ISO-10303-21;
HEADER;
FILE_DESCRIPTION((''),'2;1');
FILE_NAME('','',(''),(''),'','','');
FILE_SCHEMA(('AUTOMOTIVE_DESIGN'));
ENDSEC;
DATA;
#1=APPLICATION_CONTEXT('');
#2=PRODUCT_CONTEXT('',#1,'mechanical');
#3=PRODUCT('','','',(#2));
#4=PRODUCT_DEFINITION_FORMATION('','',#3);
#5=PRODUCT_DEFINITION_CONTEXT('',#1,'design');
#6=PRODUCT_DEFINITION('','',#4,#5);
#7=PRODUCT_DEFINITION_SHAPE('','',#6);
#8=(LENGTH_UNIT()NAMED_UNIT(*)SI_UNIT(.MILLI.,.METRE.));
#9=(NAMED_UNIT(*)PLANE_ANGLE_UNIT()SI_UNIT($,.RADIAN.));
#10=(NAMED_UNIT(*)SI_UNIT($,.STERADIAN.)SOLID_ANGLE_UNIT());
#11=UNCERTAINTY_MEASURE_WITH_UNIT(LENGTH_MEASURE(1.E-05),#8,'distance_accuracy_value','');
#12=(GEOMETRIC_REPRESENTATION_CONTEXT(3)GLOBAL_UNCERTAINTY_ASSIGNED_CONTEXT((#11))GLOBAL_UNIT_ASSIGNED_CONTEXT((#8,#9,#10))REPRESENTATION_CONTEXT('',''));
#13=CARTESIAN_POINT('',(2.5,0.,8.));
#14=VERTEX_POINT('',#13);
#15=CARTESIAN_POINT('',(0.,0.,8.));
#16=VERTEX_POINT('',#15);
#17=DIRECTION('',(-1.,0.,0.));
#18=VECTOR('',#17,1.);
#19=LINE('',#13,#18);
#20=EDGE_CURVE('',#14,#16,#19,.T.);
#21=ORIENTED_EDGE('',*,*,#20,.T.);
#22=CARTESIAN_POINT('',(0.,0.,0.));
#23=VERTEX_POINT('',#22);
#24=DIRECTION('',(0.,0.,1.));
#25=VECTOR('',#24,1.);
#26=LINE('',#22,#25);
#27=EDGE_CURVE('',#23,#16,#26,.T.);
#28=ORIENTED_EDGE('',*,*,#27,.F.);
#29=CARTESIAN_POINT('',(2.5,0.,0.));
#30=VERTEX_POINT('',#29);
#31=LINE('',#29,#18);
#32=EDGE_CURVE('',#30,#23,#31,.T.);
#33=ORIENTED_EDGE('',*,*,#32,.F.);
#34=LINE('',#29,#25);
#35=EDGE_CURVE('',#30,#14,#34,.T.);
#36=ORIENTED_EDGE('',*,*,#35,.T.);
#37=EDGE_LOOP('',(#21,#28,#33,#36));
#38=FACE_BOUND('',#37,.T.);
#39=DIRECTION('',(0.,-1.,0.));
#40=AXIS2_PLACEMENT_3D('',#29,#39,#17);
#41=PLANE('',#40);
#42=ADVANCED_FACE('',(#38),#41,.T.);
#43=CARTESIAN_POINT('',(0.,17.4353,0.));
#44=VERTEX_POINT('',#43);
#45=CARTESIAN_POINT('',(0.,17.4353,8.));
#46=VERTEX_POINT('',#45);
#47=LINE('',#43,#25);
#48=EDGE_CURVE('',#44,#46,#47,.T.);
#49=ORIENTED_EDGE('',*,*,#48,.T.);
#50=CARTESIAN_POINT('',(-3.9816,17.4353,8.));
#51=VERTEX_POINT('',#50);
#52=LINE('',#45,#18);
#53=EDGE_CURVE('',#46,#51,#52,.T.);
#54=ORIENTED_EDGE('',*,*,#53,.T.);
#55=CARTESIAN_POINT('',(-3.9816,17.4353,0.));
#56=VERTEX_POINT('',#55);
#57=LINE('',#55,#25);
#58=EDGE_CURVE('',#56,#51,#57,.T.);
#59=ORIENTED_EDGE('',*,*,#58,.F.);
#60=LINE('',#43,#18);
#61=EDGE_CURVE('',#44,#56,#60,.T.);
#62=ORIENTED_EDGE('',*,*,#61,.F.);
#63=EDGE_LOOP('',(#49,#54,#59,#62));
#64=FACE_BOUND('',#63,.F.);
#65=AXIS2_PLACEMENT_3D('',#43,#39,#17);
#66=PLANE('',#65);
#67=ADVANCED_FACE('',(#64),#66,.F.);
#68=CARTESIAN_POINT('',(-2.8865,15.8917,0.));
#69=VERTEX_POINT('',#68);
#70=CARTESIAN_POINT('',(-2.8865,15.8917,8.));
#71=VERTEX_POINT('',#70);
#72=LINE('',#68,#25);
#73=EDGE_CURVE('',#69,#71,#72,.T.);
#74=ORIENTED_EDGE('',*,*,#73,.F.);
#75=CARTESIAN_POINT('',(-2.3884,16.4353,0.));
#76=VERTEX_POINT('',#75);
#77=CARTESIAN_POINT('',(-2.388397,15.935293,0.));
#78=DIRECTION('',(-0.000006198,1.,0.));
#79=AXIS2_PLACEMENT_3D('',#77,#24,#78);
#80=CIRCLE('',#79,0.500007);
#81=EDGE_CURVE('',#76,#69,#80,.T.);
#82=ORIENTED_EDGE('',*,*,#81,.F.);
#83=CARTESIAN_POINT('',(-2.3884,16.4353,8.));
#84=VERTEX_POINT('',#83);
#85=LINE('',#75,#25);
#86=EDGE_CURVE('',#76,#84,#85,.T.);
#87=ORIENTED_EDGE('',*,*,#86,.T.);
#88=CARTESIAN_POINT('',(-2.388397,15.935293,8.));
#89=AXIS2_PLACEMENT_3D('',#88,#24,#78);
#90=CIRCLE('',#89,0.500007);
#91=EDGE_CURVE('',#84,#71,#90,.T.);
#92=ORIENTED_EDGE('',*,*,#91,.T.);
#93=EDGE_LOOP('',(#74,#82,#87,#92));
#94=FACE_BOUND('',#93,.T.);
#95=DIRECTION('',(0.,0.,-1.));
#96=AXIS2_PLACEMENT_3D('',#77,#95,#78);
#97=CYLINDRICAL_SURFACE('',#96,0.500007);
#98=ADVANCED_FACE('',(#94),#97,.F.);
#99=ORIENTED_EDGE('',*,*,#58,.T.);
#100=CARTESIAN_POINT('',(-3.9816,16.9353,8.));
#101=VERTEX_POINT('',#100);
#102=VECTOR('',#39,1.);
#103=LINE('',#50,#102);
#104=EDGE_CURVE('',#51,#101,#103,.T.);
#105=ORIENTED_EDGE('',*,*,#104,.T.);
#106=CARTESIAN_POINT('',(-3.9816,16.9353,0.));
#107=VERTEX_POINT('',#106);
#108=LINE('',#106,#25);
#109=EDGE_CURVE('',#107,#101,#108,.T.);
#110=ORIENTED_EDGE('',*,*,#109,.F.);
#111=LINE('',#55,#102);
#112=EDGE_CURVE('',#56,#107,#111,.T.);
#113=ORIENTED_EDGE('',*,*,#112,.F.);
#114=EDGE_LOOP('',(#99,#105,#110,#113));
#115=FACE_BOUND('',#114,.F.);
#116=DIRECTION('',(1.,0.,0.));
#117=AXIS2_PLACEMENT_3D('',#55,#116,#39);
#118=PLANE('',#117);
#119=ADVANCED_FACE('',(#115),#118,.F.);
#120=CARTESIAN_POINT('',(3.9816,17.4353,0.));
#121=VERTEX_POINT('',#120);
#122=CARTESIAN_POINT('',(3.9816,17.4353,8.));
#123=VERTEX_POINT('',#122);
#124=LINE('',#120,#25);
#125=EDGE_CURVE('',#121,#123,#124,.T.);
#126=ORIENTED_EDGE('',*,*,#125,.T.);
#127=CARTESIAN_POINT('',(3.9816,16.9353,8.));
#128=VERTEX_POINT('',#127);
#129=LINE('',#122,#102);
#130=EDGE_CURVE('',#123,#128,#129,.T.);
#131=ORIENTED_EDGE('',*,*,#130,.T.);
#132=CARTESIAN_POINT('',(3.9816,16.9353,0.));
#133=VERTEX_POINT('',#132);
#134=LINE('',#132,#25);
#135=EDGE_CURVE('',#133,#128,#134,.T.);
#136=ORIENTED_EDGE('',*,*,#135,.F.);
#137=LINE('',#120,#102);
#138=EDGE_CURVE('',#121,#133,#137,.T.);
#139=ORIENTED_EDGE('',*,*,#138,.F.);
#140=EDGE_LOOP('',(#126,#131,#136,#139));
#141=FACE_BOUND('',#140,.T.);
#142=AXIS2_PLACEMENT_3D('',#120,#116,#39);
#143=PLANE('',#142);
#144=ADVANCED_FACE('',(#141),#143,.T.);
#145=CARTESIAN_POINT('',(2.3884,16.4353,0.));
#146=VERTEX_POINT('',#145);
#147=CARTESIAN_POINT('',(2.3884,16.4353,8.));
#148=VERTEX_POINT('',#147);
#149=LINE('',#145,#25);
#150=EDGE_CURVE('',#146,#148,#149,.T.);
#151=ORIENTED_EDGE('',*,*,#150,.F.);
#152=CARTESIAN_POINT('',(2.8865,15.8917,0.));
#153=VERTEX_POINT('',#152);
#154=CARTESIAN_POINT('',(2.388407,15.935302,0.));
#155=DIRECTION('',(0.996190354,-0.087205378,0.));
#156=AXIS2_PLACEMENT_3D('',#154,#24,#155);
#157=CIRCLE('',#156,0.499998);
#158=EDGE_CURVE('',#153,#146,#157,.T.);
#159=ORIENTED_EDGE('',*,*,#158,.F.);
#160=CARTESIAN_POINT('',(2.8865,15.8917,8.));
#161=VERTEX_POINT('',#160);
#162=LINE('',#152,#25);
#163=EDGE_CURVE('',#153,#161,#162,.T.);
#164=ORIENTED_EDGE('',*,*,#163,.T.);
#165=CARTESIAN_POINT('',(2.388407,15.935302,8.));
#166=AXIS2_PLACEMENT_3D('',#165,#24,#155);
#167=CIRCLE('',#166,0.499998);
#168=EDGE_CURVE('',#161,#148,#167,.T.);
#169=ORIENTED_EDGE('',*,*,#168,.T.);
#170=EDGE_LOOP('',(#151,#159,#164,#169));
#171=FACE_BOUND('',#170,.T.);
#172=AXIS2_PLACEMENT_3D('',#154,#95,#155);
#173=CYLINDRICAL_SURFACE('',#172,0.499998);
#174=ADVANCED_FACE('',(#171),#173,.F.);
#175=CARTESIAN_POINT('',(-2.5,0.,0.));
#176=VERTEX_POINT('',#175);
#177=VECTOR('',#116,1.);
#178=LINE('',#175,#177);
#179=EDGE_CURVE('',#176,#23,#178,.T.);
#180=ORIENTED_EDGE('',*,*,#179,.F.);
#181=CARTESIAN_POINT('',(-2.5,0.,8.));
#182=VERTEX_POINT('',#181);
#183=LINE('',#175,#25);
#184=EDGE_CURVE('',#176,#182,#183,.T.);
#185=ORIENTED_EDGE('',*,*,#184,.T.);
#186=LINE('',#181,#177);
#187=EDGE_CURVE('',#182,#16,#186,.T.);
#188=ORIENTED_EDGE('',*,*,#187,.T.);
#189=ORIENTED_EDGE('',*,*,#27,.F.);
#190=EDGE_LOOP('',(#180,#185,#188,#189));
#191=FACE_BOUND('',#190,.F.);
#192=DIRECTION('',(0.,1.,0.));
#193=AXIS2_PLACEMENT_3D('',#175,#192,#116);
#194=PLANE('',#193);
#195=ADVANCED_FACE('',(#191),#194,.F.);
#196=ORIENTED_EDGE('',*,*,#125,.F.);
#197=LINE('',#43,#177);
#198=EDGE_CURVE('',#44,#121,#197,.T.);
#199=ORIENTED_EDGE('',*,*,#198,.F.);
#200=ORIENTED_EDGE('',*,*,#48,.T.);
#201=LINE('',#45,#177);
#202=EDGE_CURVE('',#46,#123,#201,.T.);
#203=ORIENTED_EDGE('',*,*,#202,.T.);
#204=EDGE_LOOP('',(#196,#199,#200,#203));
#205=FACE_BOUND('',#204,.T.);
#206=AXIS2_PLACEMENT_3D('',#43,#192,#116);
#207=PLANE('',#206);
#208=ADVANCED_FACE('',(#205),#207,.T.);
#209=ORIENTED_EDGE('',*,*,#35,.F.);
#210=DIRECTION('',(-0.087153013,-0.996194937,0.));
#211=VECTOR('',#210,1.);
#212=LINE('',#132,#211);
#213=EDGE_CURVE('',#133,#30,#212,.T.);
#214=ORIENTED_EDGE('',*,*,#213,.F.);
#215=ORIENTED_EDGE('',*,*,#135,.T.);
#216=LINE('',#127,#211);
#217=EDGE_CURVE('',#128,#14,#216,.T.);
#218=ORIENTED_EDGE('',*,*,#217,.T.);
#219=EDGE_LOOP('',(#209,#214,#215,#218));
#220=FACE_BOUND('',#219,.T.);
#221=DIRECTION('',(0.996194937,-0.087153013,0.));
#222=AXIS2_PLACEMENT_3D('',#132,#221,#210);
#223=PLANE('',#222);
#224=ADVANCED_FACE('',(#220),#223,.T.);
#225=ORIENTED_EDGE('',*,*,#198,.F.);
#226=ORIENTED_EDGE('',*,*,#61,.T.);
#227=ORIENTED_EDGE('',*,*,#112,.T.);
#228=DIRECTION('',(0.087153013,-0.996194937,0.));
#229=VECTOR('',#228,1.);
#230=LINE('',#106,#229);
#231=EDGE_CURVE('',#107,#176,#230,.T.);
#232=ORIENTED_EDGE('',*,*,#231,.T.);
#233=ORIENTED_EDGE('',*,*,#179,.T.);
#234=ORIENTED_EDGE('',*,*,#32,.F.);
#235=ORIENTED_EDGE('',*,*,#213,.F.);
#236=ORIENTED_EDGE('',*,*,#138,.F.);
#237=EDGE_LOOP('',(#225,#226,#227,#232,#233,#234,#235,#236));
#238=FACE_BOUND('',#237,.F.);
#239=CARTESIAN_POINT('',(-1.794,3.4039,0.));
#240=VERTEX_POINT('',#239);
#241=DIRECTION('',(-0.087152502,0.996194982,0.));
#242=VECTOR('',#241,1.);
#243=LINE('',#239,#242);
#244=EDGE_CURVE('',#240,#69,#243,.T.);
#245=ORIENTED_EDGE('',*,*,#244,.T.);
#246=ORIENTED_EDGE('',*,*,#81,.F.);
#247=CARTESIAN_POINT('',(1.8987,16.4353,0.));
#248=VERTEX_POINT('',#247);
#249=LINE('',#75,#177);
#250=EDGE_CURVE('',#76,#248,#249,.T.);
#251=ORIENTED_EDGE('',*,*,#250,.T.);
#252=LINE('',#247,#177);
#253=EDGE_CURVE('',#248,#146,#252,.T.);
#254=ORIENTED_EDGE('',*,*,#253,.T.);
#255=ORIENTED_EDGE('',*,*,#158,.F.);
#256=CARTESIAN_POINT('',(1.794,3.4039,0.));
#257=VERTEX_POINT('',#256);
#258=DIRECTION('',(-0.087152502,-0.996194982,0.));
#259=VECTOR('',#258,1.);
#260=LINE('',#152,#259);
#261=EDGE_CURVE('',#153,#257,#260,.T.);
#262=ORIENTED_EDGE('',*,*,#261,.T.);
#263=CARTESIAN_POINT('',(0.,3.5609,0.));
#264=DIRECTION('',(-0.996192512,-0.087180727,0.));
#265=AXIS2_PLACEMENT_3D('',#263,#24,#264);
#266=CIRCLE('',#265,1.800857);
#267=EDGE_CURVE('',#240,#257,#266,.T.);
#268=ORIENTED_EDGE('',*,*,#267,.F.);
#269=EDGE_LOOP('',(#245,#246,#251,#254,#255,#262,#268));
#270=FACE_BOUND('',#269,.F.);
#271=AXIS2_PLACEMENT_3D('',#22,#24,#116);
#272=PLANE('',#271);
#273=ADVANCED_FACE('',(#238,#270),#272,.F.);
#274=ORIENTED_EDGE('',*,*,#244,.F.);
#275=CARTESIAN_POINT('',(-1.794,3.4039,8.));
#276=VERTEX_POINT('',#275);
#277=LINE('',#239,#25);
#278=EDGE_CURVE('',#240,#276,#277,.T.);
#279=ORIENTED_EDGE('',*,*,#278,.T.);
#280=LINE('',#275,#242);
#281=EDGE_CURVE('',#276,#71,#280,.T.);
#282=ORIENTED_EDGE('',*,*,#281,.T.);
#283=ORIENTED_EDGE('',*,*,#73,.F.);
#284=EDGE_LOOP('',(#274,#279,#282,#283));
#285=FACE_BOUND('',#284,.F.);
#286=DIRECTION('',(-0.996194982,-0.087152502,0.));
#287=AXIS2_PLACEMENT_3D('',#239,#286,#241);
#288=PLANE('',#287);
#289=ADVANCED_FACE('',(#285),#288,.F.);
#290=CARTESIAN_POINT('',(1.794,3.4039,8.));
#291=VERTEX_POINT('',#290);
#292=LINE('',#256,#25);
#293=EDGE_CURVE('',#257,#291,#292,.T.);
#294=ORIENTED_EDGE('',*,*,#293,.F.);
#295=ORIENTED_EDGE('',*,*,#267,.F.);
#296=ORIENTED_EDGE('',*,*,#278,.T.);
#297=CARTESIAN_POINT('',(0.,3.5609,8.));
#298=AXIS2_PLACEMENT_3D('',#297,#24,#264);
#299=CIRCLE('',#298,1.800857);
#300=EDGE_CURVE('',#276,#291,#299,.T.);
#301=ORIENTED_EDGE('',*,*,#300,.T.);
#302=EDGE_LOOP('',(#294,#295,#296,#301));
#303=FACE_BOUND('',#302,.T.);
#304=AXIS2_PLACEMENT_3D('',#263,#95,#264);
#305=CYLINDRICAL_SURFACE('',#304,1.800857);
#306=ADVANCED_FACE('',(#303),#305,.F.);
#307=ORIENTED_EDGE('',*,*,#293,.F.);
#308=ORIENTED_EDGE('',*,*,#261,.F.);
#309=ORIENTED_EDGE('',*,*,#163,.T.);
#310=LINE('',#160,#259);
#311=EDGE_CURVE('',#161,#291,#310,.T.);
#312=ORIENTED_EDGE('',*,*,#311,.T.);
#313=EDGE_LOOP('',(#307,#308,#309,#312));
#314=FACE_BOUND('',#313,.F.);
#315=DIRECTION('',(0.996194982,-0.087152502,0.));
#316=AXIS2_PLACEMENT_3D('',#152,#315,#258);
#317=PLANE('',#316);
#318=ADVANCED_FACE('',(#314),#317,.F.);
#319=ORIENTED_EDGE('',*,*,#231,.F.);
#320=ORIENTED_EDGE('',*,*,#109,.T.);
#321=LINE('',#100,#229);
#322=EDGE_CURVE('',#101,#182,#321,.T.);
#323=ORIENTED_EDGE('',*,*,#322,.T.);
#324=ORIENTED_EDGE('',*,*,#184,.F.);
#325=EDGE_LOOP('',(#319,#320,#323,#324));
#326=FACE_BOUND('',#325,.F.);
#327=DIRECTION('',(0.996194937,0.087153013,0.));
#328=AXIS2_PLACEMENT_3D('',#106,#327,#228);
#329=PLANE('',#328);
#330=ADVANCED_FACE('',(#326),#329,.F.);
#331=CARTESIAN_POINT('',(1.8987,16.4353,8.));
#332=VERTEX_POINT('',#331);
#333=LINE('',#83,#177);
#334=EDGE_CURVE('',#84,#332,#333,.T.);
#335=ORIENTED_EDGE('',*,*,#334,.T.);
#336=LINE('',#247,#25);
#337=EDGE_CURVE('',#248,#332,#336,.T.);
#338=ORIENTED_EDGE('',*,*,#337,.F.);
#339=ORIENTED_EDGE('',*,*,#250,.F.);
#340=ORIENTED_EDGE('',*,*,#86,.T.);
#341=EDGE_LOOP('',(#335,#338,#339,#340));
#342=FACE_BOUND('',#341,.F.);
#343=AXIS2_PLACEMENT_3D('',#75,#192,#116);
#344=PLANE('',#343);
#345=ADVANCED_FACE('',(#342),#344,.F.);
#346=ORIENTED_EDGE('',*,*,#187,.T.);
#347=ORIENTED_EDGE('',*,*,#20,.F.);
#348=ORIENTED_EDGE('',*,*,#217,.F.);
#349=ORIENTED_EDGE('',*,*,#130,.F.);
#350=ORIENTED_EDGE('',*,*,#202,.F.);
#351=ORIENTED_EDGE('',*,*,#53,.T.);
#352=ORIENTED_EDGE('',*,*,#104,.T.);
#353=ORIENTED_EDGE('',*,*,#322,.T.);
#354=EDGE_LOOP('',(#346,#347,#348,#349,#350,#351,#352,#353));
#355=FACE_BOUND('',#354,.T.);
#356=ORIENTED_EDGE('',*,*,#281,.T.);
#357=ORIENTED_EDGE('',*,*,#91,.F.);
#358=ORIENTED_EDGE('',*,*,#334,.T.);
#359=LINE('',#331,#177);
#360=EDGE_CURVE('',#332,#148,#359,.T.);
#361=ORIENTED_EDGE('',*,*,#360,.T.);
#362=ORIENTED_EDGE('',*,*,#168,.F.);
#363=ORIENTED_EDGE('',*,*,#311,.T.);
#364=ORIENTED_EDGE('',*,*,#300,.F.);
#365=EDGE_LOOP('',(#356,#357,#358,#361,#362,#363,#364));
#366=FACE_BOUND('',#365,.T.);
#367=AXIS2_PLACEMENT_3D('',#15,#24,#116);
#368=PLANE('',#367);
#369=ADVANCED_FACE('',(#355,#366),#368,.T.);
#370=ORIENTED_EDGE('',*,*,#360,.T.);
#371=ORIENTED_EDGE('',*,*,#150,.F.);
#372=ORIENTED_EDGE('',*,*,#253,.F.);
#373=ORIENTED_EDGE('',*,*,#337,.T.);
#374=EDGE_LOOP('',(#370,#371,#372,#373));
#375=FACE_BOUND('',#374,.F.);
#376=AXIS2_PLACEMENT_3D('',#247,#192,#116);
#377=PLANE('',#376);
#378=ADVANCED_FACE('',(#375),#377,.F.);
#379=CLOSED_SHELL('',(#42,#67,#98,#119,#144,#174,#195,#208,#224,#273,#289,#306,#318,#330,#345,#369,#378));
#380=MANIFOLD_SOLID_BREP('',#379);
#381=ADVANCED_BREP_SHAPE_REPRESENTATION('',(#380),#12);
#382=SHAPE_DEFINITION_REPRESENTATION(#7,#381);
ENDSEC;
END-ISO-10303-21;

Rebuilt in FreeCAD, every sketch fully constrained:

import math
import FreeCAD as App
import Part
import Sketcher
from FreeCAD import Vector
Q = App.Units.Quantity

doc = App.newDocument("Part")
body = doc.addObject("PartDesign::Body", "Body")

sketch1 = body.newObject("Sketcher::SketchObject", "Sketch")
sketch1.AttachmentSupport = (doc.getObject("XY_Plane"), [""])
sketch1.MapMode = "FlatFace"
sketch1.addGeometry(Part.LineSegment(Vector(4, 17.4, 0), Vector(-4, 17.4, 0)), False)
sketch1.addGeometry(Part.LineSegment(Vector(-4, 17.4, 0), Vector(-4, 16.9, 0)), False)
sketch1.addGeometry(Part.LineSegment(Vector(-4, 16.9, 0), Vector(-2.5, 0, 0)), False)
sketch1.addGeometry(Part.LineSegment(Vector(-2.5, 0, 0), Vector(2.5, 0, 0)), False)
sketch1.addGeometry(Part.LineSegment(Vector(2.5, 0, 0), Vector(4, 16.9, 0)), False)
sketch1.addGeometry(Part.LineSegment(Vector(4, 16.9, 0), Vector(4, 17.4, 0)), False)
sketch1.addGeometry(Part.ArcOfCircle(Part.Circle(Vector(-2.4, 15.9, 0), Vector(0, 0, 1), 0.5), math.radians(90), math.radians(185)), False)
sketch1.addGeometry(Part.LineSegment(Vector(-2.4, 16.4, 0), Vector(2.4, 16.4, 0)), False)
sketch1.addGeometry(Part.ArcOfCircle(Part.Circle(Vector(2.4, 15.9, 0), Vector(0, 0, 1), 0.5), math.radians(-5), math.radians(90)), False)
sketch1.addGeometry(Part.LineSegment(Vector(2.9, 15.9, 0), Vector(1.8, 3.4, 0)), False)
sketch1.addGeometry(Part.ArcOfCircle(Part.Circle(Vector(0, 3.6, 0), Vector(0, 0, 1), 1.8), math.radians(-175), math.radians(-5)), False)
sketch1.addGeometry(Part.LineSegment(Vector(-1.8, 3.4, 0), Vector(-2.9, 15.9, 0)), False)
sketch1.addConstraint(Sketcher.Constraint("Coincident", 0, 2, 1, 1))
sketch1.addConstraint(Sketcher.Constraint("Coincident", 1, 2, 2, 1))
sketch1.addConstraint(Sketcher.Constraint("Coincident", 2, 2, 3, 1))
sketch1.addConstraint(Sketcher.Constraint("Coincident", 3, 2, 4, 1))
sketch1.addConstraint(Sketcher.Constraint("Coincident", 4, 2, 5, 1))
sketch1.addConstraint(Sketcher.Constraint("Coincident", 5, 2, 0, 1))
sketch1.addConstraint(Sketcher.Constraint("Tangent", 6, 1, 7, 1))
sketch1.addConstraint(Sketcher.Constraint("Tangent", 7, 2, 8, 2))
sketch1.addConstraint(Sketcher.Constraint("Tangent", 8, 1, 9, 1))
sketch1.addConstraint(Sketcher.Constraint("Tangent", 9, 2, 10, 2))
sketch1.addConstraint(Sketcher.Constraint("Tangent", 10, 1, 11, 1))
sketch1.addConstraint(Sketcher.Constraint("Tangent", 11, 2, 6, 2))
sketch1.addConstraint(Sketcher.Constraint("Horizontal", 0))
sketch1.addConstraint(Sketcher.Constraint("Vertical", 1))
sketch1.addConstraint(Sketcher.Constraint("Horizontal", 3))
sketch1.addConstraint(Sketcher.Constraint("Vertical", 5))
sketch1.addConstraint(Sketcher.Constraint("Horizontal", 7))
sketch1.addConstraint(Sketcher.Constraint("Equal", 6, 8))
sketch1.addConstraint(Sketcher.Constraint("Symmetric", 2, 2, 3, 2, -1, 1))
sketch1.addConstraint(Sketcher.Constraint("Symmetric", 1, 2, 4, 2, -2))
sketch1.addConstraint(Sketcher.Constraint("Symmetric", 9, 2, 10, 1, -2))
sketch1.addConstraint(Sketcher.Constraint("Parallel", 4, 9))
sketch1.addConstraint(Sketcher.Constraint("Radius", 6, 0.5))
sketch1.addConstraint(Sketcher.Constraint("DistanceX", 3, 1, 3, 2, 5.0))
sketch1.addConstraint(Sketcher.Constraint("Distance", 2, 17.0))
sketch1.addConstraint(Sketcher.Constraint("DistanceY", 1, 2, 1, 1, 0.5))
sketch1.addConstraint(Sketcher.Constraint("DistanceY", 6, 3, 1, 2, 1.0))
sketch1.addConstraint(Sketcher.Constraint("Angle", 2, Q("-85.0002 deg")))
sketch1.addConstraint(Sketcher.Constraint("Radius", 10, 1.8009))
sketch1.addConstraint(Sketcher.Constraint("DistanceX", 0, 2, 8, 3, 6.37))
pad1 = body.newObject("PartDesign::Pad", "Pad")
pad1.Profile = sketch1
pad1.Length = 8

doc.recompute()
